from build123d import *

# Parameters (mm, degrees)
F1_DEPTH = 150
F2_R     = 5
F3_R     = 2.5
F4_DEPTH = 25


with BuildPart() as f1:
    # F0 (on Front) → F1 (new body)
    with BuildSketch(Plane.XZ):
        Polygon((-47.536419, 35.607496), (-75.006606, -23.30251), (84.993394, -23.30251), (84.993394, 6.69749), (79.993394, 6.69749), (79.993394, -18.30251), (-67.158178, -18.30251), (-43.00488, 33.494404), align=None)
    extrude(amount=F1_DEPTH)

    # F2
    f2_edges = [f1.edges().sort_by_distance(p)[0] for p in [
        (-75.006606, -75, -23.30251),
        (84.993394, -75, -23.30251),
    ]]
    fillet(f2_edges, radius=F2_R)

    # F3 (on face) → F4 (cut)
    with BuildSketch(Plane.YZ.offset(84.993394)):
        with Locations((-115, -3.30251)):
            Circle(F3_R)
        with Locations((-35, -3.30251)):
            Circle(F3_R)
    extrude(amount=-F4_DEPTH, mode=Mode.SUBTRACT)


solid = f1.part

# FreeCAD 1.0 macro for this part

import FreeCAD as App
import Part
import Sketcher
from FreeCAD import Vector
Q = App.Units.Quantity


def edges_at(feature, points):
    """Names of the edges that pass closest to the given points."""
    edges = feature.Shape.Edges
    near = lambda p: min(range(len(edges)), key=lambda i: edges[i].distToShape(Part.Vertex(*p))[0])
    return sorted({f"Edge{near(p) + 1}" for p in points})

doc = App.newDocument("Part")
body = doc.addObject("PartDesign::Body", "Body")

# Sketch on XZ plane
sketch1 = body.newObject("Sketcher::SketchObject", "Sketch")
sketch1.AttachmentSupport = (doc.getObject("XZ_Plane"), [""])
sketch1.MapMode = "FlatFace"
sketch1.addGeometry(Part.LineSegment(Vector(-48, 36, 0), Vector(-75, -23, 0)), False)
sketch1.addGeometry(Part.LineSegment(Vector(-75, -23, 0), Vector(85, -23, 0)), False)
sketch1.addGeometry(Part.LineSegment(Vector(85, -23, 0), Vector(85, 7, 0)), False)
sketch1.addGeometry(Part.LineSegment(Vector(85, 7, 0), Vector(80, 7, 0)), False)
sketch1.addGeometry(Part.LineSegment(Vector(80, 7, 0), Vector(80, -18, 0)), False)
sketch1.addGeometry(Part.LineSegment(Vector(80, -18, 0), Vector(-67, -18, 0)), False)
sketch1.addGeometry(Part.LineSegment(Vector(-67, -18, 0), Vector(-43, 33, 0)), False)
sketch1.addGeometry(Part.LineSegment(Vector(-43, 33, 0), Vector(-48, 36, 0)), False)
sketch1.addConstraint(Sketcher.Constraint("Coincident", 0, 2, 1, 1))
sketch1.addConstraint(Sketcher.Constraint("Coincident", 1, 2, 2, 1))
sketch1.addConstraint(Sketcher.Constraint("Coincident", 2, 2, 3, 1))
sketch1.addConstraint(Sketcher.Constraint("Coincident", 3, 2, 4, 1))
sketch1.addConstraint(Sketcher.Constraint("Coincident", 4, 2, 5, 1))
sketch1.addConstraint(Sketcher.Constraint("Coincident", 5, 2, 6, 1))
sketch1.addConstraint(Sketcher.Constraint("Coincident", 6, 2, 7, 1))
sketch1.addConstraint(Sketcher.Constraint("Coincident", 7, 2, 0, 1))
sketch1.addConstraint(Sketcher.Constraint("Horizontal", 1))
sketch1.addConstraint(Sketcher.Constraint("Vertical", 2))
sketch1.addConstraint(Sketcher.Constraint("Horizontal", 3))
sketch1.addConstraint(Sketcher.Constraint("Vertical", 4))
sketch1.addConstraint(Sketcher.Constraint("Horizontal", 5))
sketch1.addConstraint(Sketcher.Constraint("Parallel", 0, 6))
sketch1.addConstraint(Sketcher.Constraint("Perpendicular", 6, 7))
sketch1.addConstraint(Sketcher.Constraint("DistanceX", 1, 1, 1, 2, 160.0))
sketch1.addConstraint(Sketcher.Constraint("DistanceX", 3, 2, 3, 1, 5.0))
sketch1.addConstraint(Sketcher.Constraint("DistanceY", 2, 1, 2, 2, 30.0))
sketch1.addConstraint(Sketcher.Constraint("DistanceY", 4, 2, 4, 1, 25.0))
sketch1.addConstraint(Sketcher.Constraint("Angle", 0, Q("-115 deg")))
sketch1.addConstraint(Sketcher.Constraint("Distance", 0, 65.0))
sketch1.addConstraint(Sketcher.Constraint("Distance", 7, 5.0))
sketch1.addConstraint(Sketcher.Constraint("DistanceY", 0, 2, -1, 1, 23.30251))
sketch1.addConstraint(Sketcher.Constraint("DistanceX", 5, 2, -1, 1, 67.158178))
pad1 = body.newObject("PartDesign::Pad", "Pad")
pad1.Profile = sketch1
pad1.Length = 150
doc.recompute()

fillet = body.newObject("PartDesign::Fillet", "Fillet")
fillet.Base = (pad1, edges_at(pad1, [(-75.007, -75, -23.303), (84.993, -75, -23.303)]))
fillet.Radius = 5

# Sketch on YZ plane
sketch2 = body.newObject("Sketcher::SketchObject", "Sketch001")
sketch2.AttachmentSupport = (doc.getObject("YZ_Plane"), [""])
sketch2.MapMode = "FlatFace"
sketch2.AttachmentOffset = App.Placement(Vector(0, 0, 84.993394), App.Rotation())
sketch2.addGeometry(Part.Circle(Vector(-115, -3.3, 0), Vector(0, 0, 1), 2.5), False)
sketch2.addGeometry(Part.Circle(Vector(-35, -3.3, 0), Vector(0, 0, 1), 2.5), False)
sketch2.addConstraint(Sketcher.Constraint("Equal", 0, 1))
sketch2.addConstraint(Sketcher.Constraint("Horizontal", 0, 3, 1, 3))
sketch2.addConstraint(Sketcher.Constraint("Diameter", 0, 5.0))
sketch2.addConstraint(Sketcher.Constraint("DistanceX", 0, 3, -1, 1, 115.0))
sketch2.addConstraint(Sketcher.Constraint("DistanceX", 1, 3, -1, 1, 35.0))
sketch2.addConstraint(Sketcher.Constraint("DistanceY", 0, 3, -1, 1, 3.30251))
pocket1 = body.newObject("PartDesign::Pocket", "Pocket")
pocket1.Profile = sketch2
pocket1.Length = 25

doc.recompute()
